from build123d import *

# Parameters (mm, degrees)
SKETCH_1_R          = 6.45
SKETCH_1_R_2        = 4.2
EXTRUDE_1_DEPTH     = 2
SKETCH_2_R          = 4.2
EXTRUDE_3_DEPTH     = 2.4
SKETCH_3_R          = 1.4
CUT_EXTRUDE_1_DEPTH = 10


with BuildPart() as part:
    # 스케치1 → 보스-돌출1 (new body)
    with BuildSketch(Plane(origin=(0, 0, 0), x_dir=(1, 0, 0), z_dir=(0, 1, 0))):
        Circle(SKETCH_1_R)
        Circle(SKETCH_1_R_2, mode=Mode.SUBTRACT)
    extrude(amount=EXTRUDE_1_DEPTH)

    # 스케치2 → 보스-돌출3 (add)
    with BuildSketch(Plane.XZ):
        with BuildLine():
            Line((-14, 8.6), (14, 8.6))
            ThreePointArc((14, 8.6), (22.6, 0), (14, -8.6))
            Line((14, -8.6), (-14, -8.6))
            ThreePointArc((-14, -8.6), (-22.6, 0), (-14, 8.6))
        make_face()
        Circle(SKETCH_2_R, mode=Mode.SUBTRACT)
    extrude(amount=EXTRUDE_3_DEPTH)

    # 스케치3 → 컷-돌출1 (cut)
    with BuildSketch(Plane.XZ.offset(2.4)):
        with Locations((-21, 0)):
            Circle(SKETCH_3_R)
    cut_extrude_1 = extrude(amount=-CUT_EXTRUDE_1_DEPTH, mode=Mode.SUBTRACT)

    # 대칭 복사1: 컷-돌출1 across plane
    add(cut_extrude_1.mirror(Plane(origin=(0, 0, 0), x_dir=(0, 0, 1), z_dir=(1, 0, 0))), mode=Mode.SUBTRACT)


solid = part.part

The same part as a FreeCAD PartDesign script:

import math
import FreeCAD as App
import Part
import Sketcher

V = App.Vector

doc = App.newDocument("Part")
params = doc.addObject("Spreadsheet::Sheet", "Params")
for row, (alias, value) in enumerate([
    ("sketch1_diameter", "12.9 mm"),
    ("sketch1_diameter2", "8.4 mm"),
    ("pad1_length", "2 mm"),
    ("sketch2_diameter", "8.4 mm"),
    ("sketch2_radius", "8.6 mm"),
    ("sketch2_width", "28 mm"),
    ("pad2_length", "2.4 mm"),
    ("sketch3_diameter", "2.8 mm"),
    ("pocket1_length", "10 mm"),
], start=1):
    params.set(f"A{row}", alias)
    params.set(f"B{row}", "=" + value)
    params.setAlias(f"B{row}", alias)

body = doc.addObject("PartDesign::Body", "Body")

sketch1 = body.newObject("Sketcher::SketchObject", "Sketch")
sketch1.AttachmentSupport = (doc.getObject("XZ_Plane"), [""])
sketch1.MapMode = "FlatFace"
sketch1.addGeometry(Part.Circle(V(0, 0, 0), V(0, 0, 1), 6.5), False)
sketch1.addGeometry(Part.Circle(V(0, 0, 0), V(0, 0, 1), 4.2), False)
sketch1.addConstraint(Sketcher.Constraint("Coincident", 0, 3, -1, 1))
sketch1.addConstraint(Sketcher.Constraint("Coincident", 1, 3, -1, 1))
sketch1.addConstraint(Sketcher.Constraint("Diameter", 0, 12.9))
sketch1.addConstraint(Sketcher.Constraint("Diameter", 1, 8.4))
sketch1.setExpression("Constraints[2]", "Params.sketch1_diameter")
sketch1.setExpression("Constraints[3]", "Params.sketch1_diameter2")
pad1 = body.newObject("PartDesign::Pad", "Pad")
pad1.Profile = sketch1
pad1.setExpression("Length", "Params.pad1_length")
pad1.Reversed = True

sketch2 = body.newObject("Sketcher::SketchObject", "Sketch001")
sketch2.AttachmentSupport = (doc.getObject("XZ_Plane"), [""])
sketch2.MapMode = "FlatFace"
sketch2.addGeometry(Part.LineSegment(V(14, 8.6, 0), V(-14, 8.6, 0)), False)
sketch2.addGeometry(Part.ArcOfCircle(Part.Circle(V(-14, 0, 0), V(0, 0, 1), 8.6), math.radians(90), math.radians(270)), False)
sketch2.addGeometry(Part.LineSegment(V(-14, -8.6, 0), V(14, -8.6, 0)), False)
sketch2.addGeometry(Part.ArcOfCircle(Part.Circle(V(14, 0, 0), V(0, 0, 1), 8.6), math.radians(-90), math.radians(90)), False)
sketch2.addGeometry(Part.Circle(V(0, 0, 0), V(0, 0, 1), 4.2), False)
sketch2.addConstraint(Sketcher.Constraint("Tangent", 0, 2, 1, 1))
sketch2.addConstraint(Sketcher.Constraint("Tangent", 1, 2, 2, 1))
sketch2.addConstraint(Sketcher.Constraint("Tangent", 2, 2, 3, 1))
sketch2.addConstraint(Sketcher.Constraint("Tangent", 3, 2, 0, 1))
sketch2.addConstraint(Sketcher.Constraint("Horizontal", 0))
sketch2.addConstraint(Sketcher.Constraint("Horizontal", 2))
sketch2.addConstraint(Sketcher.Constraint("Coincident", 4, 3, -1, 1))
sketch2.addConstraint(Sketcher.Constraint("Symmetric", 1, 3, 3, 3, -1, 1))
sketch2.addConstraint(Sketcher.Constraint("Diameter", 4, 8.4))
sketch2.addConstraint(Sketcher.Constraint("Radius", 1, 8.6))
sketch2.addConstraint(Sketcher.Constraint("DistanceX", 0, 2, 0, 1, 28.0))
sketch2.setExpression("Constraints[8]", "Params.sketch2_diameter")
sketch2.setExpression("Constraints[9]", "Params.sketch2_radius")
sketch2.setExpression("Constraints[10]", "Params.sketch2_width")
pad2 = body.newObject("PartDesign::Pad", "Pad001")
pad2.Profile = sketch2
pad2.setExpression("Length", "Params.pad2_length")

sketch3 = body.newObject("Sketcher::SketchObject", "Sketch002")
sketch3.AttachmentSupport = (doc.getObject("XZ_Plane"), [""])
sketch3.MapMode = "FlatFace"
sketch3.AttachmentOffset = App.Placement(V(0, 0, 2.4), App.Rotation())
sketch3.addGeometry(Part.Circle(V(-21, 0, 0), V(0, 0, 1), 1.4), False)
sketch3.addConstraint(Sketcher.Constraint("PointOnObject", 0, 3, -1))
sketch3.addConstraint(Sketcher.Constraint("Diameter", 0, 2.8))
sketch3.addConstraint(Sketcher.Constraint("DistanceX", 0, 3, -1, 1, 21.0))
sketch3.setExpression("Constraints[1]", "Params.sketch3_diameter")
pocket1 = body.newObject("PartDesign::Pocket", "Pocket")
pocket1.Profile = sketch3
pocket1.setExpression("Length", "Params.pocket1_length")
doc.recompute()

mirrored = body.newObject("PartDesign::Mirrored", "Mirrored")
mirrored.Originals = [pocket1]
mirrored.MirrorPlane = (doc.getObject("YZ_Plane"), [""])
body.Tip = mirrored

doc.recompute()
